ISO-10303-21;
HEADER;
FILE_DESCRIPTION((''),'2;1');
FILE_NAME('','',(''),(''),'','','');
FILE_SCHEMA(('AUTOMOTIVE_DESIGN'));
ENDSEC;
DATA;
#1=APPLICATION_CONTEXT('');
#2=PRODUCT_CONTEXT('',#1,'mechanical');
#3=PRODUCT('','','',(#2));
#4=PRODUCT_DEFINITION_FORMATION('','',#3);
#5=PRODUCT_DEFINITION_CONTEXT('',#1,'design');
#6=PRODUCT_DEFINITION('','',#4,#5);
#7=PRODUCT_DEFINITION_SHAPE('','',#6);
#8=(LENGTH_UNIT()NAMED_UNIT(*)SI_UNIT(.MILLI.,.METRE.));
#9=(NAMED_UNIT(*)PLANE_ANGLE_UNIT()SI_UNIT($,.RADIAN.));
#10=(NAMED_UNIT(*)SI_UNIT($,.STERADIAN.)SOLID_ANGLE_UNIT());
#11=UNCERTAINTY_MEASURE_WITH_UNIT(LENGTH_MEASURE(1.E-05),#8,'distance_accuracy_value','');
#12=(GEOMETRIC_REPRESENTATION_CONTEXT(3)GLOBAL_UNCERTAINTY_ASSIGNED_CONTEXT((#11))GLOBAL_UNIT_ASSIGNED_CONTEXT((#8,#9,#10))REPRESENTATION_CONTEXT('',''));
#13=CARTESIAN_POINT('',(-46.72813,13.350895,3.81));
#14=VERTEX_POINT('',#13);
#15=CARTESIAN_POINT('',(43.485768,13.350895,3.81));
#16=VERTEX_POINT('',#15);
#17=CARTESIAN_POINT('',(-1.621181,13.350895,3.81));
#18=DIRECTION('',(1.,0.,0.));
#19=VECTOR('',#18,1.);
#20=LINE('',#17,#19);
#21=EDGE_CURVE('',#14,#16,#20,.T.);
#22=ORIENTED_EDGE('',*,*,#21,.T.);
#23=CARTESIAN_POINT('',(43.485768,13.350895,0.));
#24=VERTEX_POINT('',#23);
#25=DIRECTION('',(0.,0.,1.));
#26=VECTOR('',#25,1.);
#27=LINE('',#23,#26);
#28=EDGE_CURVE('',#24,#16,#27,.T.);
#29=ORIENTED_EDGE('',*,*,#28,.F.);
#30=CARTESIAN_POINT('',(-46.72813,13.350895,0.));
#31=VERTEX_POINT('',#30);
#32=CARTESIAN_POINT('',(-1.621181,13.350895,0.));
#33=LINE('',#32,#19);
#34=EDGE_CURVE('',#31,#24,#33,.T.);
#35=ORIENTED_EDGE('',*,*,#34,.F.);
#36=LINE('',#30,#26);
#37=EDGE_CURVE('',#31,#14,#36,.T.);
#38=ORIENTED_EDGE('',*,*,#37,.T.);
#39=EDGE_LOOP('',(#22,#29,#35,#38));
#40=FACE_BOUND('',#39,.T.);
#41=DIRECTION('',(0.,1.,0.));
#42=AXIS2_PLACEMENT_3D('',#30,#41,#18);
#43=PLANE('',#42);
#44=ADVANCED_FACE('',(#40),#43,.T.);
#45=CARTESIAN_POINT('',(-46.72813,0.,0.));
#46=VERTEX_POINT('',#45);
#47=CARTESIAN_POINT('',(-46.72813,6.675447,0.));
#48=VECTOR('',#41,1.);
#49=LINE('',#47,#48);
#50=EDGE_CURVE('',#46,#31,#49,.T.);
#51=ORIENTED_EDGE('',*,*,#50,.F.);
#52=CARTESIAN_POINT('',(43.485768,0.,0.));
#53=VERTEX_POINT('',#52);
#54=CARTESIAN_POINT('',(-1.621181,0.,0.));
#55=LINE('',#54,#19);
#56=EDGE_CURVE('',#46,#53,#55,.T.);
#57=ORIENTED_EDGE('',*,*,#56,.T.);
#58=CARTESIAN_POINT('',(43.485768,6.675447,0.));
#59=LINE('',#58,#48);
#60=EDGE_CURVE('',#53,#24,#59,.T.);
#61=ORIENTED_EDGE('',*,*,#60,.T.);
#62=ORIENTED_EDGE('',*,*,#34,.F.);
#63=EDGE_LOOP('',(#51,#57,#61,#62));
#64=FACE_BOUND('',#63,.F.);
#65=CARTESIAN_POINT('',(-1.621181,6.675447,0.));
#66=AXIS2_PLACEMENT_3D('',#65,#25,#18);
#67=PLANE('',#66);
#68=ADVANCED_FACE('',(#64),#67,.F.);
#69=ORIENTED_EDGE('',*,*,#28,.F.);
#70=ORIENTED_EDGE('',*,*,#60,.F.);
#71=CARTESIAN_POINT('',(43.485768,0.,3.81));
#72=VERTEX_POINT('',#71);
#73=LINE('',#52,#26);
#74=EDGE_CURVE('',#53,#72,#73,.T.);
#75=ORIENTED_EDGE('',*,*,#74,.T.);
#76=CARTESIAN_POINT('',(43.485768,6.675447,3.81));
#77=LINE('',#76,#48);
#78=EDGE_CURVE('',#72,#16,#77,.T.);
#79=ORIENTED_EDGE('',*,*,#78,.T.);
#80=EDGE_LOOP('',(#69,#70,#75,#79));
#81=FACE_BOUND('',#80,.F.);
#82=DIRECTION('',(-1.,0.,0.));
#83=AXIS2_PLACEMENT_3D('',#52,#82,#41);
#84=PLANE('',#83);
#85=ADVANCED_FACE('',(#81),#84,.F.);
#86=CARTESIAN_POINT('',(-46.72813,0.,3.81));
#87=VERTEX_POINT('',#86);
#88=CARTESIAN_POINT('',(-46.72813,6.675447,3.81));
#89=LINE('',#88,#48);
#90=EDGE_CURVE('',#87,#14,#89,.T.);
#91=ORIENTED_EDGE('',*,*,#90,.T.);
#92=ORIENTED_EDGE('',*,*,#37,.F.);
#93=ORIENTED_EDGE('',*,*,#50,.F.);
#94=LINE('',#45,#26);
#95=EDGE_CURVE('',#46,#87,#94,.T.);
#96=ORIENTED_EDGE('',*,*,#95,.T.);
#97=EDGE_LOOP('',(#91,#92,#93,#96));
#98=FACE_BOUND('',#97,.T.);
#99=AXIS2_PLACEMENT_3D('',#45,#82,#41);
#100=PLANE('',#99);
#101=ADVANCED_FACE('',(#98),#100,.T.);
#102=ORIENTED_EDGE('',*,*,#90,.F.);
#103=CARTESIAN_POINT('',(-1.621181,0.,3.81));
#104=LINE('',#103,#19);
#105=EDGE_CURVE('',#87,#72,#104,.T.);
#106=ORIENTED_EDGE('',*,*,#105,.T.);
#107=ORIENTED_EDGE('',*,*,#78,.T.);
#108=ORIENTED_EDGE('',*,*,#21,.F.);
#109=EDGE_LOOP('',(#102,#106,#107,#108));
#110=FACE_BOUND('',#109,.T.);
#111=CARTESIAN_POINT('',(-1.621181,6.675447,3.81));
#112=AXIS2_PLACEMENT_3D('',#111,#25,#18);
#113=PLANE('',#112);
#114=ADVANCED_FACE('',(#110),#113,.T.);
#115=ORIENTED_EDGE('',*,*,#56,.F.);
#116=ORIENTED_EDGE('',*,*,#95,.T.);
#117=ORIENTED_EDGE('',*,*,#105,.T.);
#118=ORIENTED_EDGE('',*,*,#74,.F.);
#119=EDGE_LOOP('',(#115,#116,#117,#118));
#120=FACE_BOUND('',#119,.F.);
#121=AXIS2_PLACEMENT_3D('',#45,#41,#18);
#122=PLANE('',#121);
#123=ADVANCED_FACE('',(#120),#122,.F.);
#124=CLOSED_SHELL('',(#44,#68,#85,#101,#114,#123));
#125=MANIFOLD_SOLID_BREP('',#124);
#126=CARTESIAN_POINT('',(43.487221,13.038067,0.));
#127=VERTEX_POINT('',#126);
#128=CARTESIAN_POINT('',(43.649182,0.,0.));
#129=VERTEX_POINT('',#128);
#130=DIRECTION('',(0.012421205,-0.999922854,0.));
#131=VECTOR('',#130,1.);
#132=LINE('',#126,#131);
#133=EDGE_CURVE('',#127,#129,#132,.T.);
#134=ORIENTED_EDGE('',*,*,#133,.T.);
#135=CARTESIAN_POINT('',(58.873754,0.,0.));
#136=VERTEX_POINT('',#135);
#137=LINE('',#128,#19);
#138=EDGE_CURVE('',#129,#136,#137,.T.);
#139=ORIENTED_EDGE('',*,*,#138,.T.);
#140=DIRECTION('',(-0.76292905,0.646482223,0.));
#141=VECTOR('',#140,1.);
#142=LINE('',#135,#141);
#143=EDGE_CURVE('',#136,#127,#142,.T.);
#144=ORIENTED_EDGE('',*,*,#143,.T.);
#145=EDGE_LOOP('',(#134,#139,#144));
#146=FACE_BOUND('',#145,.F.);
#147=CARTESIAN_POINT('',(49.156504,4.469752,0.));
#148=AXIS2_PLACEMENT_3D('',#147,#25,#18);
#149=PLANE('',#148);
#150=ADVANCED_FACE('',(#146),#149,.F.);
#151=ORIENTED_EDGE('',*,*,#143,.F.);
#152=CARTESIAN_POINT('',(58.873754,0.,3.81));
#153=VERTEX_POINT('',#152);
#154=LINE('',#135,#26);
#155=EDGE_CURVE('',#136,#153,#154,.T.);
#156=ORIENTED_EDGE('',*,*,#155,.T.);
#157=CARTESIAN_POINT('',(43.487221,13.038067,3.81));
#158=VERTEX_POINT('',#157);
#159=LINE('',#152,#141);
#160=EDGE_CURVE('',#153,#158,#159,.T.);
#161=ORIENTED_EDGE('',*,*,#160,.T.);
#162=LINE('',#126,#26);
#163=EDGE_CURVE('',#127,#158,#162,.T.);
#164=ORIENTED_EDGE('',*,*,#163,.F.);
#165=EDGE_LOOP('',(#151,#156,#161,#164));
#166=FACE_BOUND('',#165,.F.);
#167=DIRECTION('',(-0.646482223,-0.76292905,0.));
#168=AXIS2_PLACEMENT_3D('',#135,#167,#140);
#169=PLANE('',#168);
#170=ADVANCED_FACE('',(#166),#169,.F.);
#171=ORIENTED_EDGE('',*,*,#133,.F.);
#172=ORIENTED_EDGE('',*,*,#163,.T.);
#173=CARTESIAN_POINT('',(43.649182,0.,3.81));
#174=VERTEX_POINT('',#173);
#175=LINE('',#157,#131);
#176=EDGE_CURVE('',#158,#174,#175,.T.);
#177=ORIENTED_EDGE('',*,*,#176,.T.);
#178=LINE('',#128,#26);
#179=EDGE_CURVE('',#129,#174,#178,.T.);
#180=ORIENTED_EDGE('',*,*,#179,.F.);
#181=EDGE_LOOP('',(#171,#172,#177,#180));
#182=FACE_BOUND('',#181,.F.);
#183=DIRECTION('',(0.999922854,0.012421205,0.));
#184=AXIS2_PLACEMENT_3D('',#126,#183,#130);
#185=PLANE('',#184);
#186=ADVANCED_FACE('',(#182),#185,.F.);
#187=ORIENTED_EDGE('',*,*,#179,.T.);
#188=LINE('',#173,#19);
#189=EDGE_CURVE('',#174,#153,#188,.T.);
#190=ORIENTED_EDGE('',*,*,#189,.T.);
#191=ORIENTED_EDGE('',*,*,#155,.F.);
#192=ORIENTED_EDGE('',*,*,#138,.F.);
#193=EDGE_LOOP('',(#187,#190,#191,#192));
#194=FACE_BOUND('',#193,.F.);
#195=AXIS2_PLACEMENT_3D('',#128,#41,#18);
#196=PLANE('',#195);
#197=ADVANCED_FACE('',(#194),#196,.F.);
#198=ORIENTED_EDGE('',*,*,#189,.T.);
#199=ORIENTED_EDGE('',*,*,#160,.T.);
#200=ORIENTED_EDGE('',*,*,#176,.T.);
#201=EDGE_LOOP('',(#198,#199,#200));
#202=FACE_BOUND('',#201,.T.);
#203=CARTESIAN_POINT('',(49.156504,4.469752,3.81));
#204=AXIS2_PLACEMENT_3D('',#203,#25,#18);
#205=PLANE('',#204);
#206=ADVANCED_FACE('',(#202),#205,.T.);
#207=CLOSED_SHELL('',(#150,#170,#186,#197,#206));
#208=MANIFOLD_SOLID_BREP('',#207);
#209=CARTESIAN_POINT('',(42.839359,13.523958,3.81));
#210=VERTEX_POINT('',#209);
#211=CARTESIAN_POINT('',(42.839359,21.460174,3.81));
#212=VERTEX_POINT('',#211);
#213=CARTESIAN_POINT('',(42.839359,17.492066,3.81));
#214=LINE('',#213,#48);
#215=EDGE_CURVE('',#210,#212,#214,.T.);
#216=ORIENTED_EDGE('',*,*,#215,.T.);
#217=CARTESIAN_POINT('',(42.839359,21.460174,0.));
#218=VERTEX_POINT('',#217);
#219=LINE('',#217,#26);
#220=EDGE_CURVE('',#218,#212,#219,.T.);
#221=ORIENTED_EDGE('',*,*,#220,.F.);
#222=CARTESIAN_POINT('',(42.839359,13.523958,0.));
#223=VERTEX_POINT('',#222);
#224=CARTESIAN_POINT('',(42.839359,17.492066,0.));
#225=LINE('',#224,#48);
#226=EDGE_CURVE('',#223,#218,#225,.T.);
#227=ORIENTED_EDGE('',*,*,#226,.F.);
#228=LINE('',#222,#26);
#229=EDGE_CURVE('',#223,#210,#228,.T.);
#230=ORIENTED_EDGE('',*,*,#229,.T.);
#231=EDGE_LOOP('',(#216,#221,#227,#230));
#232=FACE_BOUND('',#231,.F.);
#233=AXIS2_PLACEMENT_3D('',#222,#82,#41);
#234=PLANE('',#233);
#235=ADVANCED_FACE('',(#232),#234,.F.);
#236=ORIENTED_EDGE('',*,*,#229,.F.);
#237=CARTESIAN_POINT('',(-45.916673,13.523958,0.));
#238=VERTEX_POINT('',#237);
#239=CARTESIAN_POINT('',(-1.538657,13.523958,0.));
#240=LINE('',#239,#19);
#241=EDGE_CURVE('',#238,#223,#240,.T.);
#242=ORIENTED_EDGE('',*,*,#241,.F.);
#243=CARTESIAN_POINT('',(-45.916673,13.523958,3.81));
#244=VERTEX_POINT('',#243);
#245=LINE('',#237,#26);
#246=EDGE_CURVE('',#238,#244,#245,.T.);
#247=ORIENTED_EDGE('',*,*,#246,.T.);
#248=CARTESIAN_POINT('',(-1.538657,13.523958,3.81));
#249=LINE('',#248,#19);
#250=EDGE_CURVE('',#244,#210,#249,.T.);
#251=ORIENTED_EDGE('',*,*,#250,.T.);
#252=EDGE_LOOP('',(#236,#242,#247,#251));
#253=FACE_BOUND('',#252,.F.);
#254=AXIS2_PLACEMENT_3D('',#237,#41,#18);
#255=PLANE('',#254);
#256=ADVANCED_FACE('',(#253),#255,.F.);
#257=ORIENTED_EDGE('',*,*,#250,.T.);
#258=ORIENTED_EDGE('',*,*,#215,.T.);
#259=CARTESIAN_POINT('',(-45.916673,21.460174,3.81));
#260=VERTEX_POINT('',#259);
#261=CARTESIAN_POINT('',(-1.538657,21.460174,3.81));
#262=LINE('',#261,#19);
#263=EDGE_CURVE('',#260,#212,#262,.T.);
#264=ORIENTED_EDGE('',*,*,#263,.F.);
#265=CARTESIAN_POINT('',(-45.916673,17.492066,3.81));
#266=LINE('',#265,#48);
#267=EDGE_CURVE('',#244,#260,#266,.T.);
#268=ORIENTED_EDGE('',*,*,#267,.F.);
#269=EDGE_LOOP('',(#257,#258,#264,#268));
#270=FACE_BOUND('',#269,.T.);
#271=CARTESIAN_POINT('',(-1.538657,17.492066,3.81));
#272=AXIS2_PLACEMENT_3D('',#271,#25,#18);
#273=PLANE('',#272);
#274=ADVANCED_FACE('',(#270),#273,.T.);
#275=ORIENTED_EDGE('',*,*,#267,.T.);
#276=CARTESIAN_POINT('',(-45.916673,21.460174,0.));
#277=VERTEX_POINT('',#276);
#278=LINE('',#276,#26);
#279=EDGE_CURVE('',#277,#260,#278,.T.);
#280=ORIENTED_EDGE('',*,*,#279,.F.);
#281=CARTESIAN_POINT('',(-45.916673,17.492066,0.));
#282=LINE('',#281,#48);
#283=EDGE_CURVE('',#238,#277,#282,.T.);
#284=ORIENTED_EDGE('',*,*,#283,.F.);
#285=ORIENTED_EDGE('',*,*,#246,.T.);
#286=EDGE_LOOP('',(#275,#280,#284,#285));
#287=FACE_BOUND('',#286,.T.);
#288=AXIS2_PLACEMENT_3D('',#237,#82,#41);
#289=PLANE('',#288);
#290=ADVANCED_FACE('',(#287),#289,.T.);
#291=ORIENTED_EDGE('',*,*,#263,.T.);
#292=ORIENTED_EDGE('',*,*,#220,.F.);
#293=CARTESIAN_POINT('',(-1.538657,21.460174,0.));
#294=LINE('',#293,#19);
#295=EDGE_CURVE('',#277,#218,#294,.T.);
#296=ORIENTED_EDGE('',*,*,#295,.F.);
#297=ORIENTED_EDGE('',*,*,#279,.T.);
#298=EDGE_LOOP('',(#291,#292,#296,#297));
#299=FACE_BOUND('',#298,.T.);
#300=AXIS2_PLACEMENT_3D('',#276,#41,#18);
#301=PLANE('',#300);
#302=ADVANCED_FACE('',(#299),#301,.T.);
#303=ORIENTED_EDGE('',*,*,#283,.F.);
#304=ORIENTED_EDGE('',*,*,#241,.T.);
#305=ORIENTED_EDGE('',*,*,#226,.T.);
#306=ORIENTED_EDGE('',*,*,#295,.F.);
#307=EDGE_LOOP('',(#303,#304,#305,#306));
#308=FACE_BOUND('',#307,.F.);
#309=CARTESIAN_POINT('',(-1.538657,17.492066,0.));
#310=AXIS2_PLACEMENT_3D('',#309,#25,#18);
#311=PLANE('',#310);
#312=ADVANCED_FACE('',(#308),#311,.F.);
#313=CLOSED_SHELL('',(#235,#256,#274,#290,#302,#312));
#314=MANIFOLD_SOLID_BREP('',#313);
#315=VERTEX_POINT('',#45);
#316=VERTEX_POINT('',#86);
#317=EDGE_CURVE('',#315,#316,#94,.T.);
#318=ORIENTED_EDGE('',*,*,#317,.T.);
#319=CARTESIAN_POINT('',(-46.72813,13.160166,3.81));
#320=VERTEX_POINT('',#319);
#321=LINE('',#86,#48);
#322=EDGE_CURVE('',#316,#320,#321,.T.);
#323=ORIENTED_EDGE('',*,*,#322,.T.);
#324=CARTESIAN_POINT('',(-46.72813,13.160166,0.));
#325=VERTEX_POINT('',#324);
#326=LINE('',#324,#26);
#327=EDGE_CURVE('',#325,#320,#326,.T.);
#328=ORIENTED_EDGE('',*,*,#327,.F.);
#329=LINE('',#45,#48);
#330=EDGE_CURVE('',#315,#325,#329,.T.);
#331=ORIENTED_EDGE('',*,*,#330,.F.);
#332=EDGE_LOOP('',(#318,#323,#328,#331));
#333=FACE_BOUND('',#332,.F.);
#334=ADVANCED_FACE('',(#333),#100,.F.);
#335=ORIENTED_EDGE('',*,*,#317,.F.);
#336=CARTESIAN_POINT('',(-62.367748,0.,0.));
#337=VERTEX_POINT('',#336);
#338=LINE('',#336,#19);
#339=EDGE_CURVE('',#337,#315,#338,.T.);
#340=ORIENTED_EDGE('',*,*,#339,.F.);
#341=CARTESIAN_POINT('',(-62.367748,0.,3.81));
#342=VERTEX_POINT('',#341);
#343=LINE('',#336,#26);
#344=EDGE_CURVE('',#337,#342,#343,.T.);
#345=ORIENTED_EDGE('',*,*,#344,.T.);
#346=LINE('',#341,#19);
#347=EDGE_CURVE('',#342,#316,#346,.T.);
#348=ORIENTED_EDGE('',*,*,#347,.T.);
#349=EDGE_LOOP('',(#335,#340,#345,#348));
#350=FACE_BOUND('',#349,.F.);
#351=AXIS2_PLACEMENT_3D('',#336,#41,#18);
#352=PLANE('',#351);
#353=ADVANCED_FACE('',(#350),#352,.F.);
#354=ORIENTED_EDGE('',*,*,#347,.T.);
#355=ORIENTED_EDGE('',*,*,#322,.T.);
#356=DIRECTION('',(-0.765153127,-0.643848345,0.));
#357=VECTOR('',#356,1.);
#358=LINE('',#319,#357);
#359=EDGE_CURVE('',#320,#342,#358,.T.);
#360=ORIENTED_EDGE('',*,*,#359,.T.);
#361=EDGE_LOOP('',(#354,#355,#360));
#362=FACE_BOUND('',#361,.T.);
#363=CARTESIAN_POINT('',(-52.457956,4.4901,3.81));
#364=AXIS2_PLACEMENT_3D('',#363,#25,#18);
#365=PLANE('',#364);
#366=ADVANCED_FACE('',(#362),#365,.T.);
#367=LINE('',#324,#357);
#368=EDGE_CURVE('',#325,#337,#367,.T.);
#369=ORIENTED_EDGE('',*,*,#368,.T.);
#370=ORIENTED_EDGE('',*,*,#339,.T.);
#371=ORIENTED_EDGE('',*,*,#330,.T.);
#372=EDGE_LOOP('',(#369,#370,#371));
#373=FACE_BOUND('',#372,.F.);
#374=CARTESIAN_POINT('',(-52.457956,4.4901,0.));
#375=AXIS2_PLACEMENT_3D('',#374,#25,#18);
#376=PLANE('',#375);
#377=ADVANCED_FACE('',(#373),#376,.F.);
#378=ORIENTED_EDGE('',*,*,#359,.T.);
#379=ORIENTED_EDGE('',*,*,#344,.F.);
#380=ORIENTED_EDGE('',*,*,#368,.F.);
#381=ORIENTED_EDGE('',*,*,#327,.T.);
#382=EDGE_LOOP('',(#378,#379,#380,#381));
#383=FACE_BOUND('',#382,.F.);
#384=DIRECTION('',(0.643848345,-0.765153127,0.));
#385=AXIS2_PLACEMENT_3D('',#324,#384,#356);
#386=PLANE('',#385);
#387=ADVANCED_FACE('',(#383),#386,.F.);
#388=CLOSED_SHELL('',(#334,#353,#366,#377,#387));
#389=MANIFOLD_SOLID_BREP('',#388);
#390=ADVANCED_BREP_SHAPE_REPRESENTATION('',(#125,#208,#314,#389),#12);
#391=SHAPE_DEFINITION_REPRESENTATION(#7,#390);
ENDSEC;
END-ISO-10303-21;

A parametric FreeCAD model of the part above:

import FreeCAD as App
import Part
import Sketcher
from FreeCAD import Vector
Q = App.Units.Quantity


def add_polygon(sketch, points):
    """Adds a closed chain of lines whose ends are joined by coincident constraints."""
    first, n = sketch.GeometryCount, len(points)
    for a, b in zip(points, points[1:] + points[:1]):
        sketch.addGeometry(Part.LineSegment(App.Vector(*a, 0), App.Vector(*b, 0)), False)
    for i in range(n):
        sketch.addConstraint(Sketcher.Constraint("Coincident", first + i, 2, first + (i + 1) % n, 1))

doc = App.newDocument("Part")
body = doc.addObject("PartDesign::Body", "Body")

sketch1 = body.newObject("Sketcher::SketchObject", "Sketch")
sketch1.AttachmentSupport = (doc.getObject("XY_Plane"), [""])
sketch1.MapMode = "FlatFace"
add_polygon(sketch1, [(-47, 13), (-47, 0), (43, 0), (43, 13)])
sketch1.addConstraint(Sketcher.Constraint("Vertical", 0))
sketch1.addConstraint(Sketcher.Constraint("Horizontal", 1))
sketch1.addConstraint(Sketcher.Constraint("Vertical", 2))
sketch1.addConstraint(Sketcher.Constraint("Horizontal", 3))
sketch1.addConstraint(Sketcher.Constraint("PointOnObject", 0, 2, -1))
sketch1.addConstraint(Sketcher.Constraint("DistanceX", 1, 1, 1, 2, 90.213898))
sketch1.addConstraint(Sketcher.Constraint("DistanceY", 0, 2, 0, 1, 13.350895))
sketch1.addConstraint(Sketcher.Constraint("DistanceX", 0, 2, -1, 1, 46.72813))
pad1 = body.newObject("PartDesign::Pad", "Pad")
pad1.Profile = sketch1
pad1.Length = Q("0.15 in")
body2 = doc.addObject("PartDesign::Body", "Body001")

sketch2 = body2.newObject("Sketcher::SketchObject", "Sketch001")
sketch2.AttachmentSupport = (doc.getObject("XY_Plane001"), [""])
sketch2.MapMode = "FlatFace"
add_polygon(sketch2, [(-47, 0), (-47, 13), (-62, 0)])
sketch2.addConstraint(Sketcher.Constraint("Vertical", 0))
sketch2.addConstraint(Sketcher.Constraint("Horizontal", 2))
sketch2.addConstraint(Sketcher.Constraint("PointOnObject", 1, 2, -1))
sketch2.addConstraint(Sketcher.Constraint("DistanceX", 2, 1, 2, 2, 15.639618))
sketch2.addConstraint(Sketcher.Constraint("DistanceY", 0, 1, 0, 2, 13.160166))
sketch2.addConstraint(Sketcher.Constraint("DistanceX", 0, 2, -1, 1, 46.72813))
pad2 = body2.newObject("PartDesign::Pad", "Pad001")
pad2.Profile = sketch2
pad2.Length = Q("0.15 in")
body3 = doc.addObject("PartDesign::Body", "Body002")

sketch3 = body3.newObject("Sketcher::SketchObject", "Sketch002")
sketch3.AttachmentSupport = (doc.getObject("XY_Plane002"), [""])
sketch3.MapMode = "FlatFace"
add_polygon(sketch3, [(59, 0), (43, 13), (44, 0)])
sketch3.addConstraint(Sketcher.Constraint("Horizontal", 2))
sketch3.addConstraint(Sketcher.Constraint("PointOnObject", 1, 2, -1))
sketch3.addConstraint(Sketcher.Constraint("DistanceX", 2, 1, 2, 2, 15.224572))
sketch3.addConstraint(Sketcher.Constraint("Distance", 0, 20.167712))
sketch3.addConstraint(Sketcher.Constraint("DistanceX", -1, 1, 0, 2, 43.487221))
sketch3.addConstraint(Sketcher.Constraint("DistanceX", 0, 2, 1, 2, 0.161961))
pad3 = body3.newObject("PartDesign::Pad", "Pad002")
pad3.Profile = sketch3
pad3.Length = Q("0.15 in")
body4 = doc.addObject("PartDesign::Body", "Body003")

sketch4 = body4.newObject("Sketcher::SketchObject", "Sketch003")
sketch4.AttachmentSupport = (doc.getObject("XY_Plane003"), [""])
sketch4.MapMode = "FlatFace"
add_polygon(sketch4, [(-46, 21), (-46, 14), (43, 14), (43, 21)])
sketch4.addConstraint(Sketcher.Constraint("Vertical", 0))
sketch4.addConstraint(Sketcher.Constraint("Horizontal", 1))
sketch4.addConstraint(Sketcher.Constraint("Vertical", 2))
sketch4.addConstraint(Sketcher.Constraint("Horizontal", 3))
sketch4.addConstraint(Sketcher.Constraint("DistanceX", 1, 1, 1, 2, 88.756032))
sketch4.addConstraint(Sketcher.Constraint("DistanceY", 0, 2, 0, 1, 7.936216))
sketch4.addConstraint(Sketcher.Constraint("DistanceX", -1, 1, 1, 2, 42.839359))
sketch4.addConstraint(Sketcher.Constraint("DistanceY", -1, 1, 0, 2, 13.523958))
pad4 = body4.newObject("PartDesign::Pad", "Pad003")
pad4.Profile = sketch4
pad4.Length = Q("0.15 in")

doc.recompute()
